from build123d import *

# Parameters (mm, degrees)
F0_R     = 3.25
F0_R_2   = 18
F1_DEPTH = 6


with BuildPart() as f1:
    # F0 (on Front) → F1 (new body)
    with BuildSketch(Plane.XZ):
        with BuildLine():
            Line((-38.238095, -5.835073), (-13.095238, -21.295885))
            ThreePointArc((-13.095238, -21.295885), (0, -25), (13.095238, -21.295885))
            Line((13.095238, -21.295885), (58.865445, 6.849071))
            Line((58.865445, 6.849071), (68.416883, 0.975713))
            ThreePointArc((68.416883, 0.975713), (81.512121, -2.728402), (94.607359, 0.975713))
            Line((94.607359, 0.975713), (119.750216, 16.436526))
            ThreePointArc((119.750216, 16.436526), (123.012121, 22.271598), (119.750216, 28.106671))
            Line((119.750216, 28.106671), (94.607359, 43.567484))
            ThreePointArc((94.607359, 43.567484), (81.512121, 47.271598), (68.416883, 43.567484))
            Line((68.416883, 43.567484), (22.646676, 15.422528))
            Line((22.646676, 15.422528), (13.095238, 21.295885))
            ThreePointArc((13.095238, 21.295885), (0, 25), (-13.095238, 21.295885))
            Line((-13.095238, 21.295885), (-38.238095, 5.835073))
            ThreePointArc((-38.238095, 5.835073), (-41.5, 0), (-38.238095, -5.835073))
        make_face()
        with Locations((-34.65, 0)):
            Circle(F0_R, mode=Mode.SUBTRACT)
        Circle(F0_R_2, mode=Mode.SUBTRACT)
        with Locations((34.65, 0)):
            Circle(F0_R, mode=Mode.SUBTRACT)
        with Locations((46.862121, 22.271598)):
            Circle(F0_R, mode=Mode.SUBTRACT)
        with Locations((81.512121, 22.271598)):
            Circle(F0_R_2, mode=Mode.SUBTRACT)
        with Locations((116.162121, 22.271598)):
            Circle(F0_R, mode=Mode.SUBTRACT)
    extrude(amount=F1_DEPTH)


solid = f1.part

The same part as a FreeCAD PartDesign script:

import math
import FreeCAD as App
import Part
import Sketcher
from FreeCAD import Vector

doc = App.newDocument("Part")
body = doc.addObject("PartDesign::Body", "Body")

# Sketch on XZ plane
sketch1 = body.newObject("Sketcher::SketchObject", "Sketch")
sketch1.AttachmentSupport = (doc.getObject("XZ_Plane"), [""])
sketch1.MapMode = "FlatFace"
sketch1.addGeometry(Part.LineSegment(Vector(-38.238095, -5.835073, 0), Vector(-13.095238, -21.295885, 0)), False)
sketch1.addGeometry(Part.ArcOfCircle(Part.Circle(Vector(0, -0.000003, 0), Vector(0, 0, 1), 24.999997), math.radians(-121.58814), math.radians(-58.41186)), False)
sketch1.addGeometry(Part.LineSegment(Vector(13.095238, -21.295885, 0), Vector(58.865445, 6.849071, 0)), False)
sketch1.addGeometry(Part.LineSegment(Vector(58.865445, 6.849071, 0), Vector(68.416883, 0.975713, 0)), False)
sketch1.addGeometry(Part.ArcOfCircle(Part.Circle(Vector(81.512121, 22.271595, 0), Vector(0, 0, 1), 24.999997), math.radians(-121.58814), math.radians(-58.41186)), False)
sketch1.addGeometry(Part.LineSegment(Vector(94.607359, 0.975713, 0), Vector(119.750216, 16.436526, 0)), False)
sketch1.addGeometry(Part.ArcOfCircle(Part.Circle(Vector(116.162121, 22.271598, 0), Vector(0, 0, 1), 6.85), math.radians(-58.411869), math.radians(58.411869)), False)
sketch1.addGeometry(Part.LineSegment(Vector(119.750216, 28.106671, 0), Vector(94.607359, 43.567484, 0)), False)
sketch1.addGeometry(Part.ArcOfCircle(Part.Circle(Vector(81.512121, 22.271595, 0), Vector(0, 0, 1), 25.000003), math.radians(58.411868), math.radians(121.588132)), False)
sketch1.addGeometry(Part.LineSegment(Vector(68.416883, 43.567484, 0), Vector(22.646676, 15.422528, 0)), False)
sketch1.addGeometry(Part.LineSegment(Vector(22.646676, 15.422528, 0), Vector(13.095238, 21.295885, 0)), False)
sketch1.addGeometry(Part.ArcOfCircle(Part.Circle(Vector(0, 0.000003, 0), Vector(0, 0, 1), 24.999997), math.radians(58.41186), math.radians(121.58814)), False)
sketch1.addGeometry(Part.LineSegment(Vector(-13.095238, 21.295885, 0), Vector(-38.238095, 5.835073, 0)), False)
sketch1.addGeometry(Part.ArcOfCircle(Part.Circle(Vector(-34.65, 0, 0), Vector(0, 0, 1), 6.85), math.radians(121.588135), math.radians(238.411865)), False)
sketch1.addGeometry(Part.Circle(Vector(-34.65, 0, 0), Vector(0, 0, 1), 3.25), False)
sketch1.addGeometry(Part.Circle(Vector(0, 0, 0), Vector(0, 0, 1), 18), False)
sketch1.addGeometry(Part.Circle(Vector(34.65, 0, 0), Vector(0, 0, 1), 3.25), False)
sketch1.addGeometry(Part.Circle(Vector(46.862121, 22.271598, 0), Vector(0, 0, 1), 3.25), False)
sketch1.addGeometry(Part.Circle(Vector(81.512121, 22.271598, 0), Vector(0, 0, 1), 18), False)
sketch1.addGeometry(Part.Circle(Vector(116.162121, 22.271598, 0), Vector(0, 0, 1), 3.25), False)
sketch1.addConstraint(Sketcher.Constraint("Tangent", 0, 2, 1, 1))
sketch1.addConstraint(Sketcher.Constraint("Tangent", 1, 2, 2, 1))
sketch1.addConstraint(Sketcher.Constraint("Coincident", 2, 2, 3, 1))
sketch1.addConstraint(Sketcher.Constraint("Tangent", 3, 2, 4, 1))
sketch1.addConstraint(Sketcher.Constraint("Tangent", 4, 2, 5, 1))
sketch1.addConstraint(Sketcher.Constraint("Tangent", 5, 2, 6, 1))
sketch1.addConstraint(Sketcher.Constraint("Tangent", 6, 2, 7, 1))
sketch1.addConstraint(Sketcher.Constraint("Tangent", 7, 2, 8, 1))
sketch1.addConstraint(Sketcher.Constraint("Tangent", 8, 2, 9, 1))
sketch1.addConstraint(Sketcher.Constraint("Coincident", 9, 2, 10, 1))
sketch1.addConstraint(Sketcher.Constraint("Tangent", 10, 2, 11, 1))
sketch1.addConstraint(Sketcher.Constraint("Tangent", 11, 2, 12, 1))
sketch1.addConstraint(Sketcher.Constraint("Tangent", 12, 2, 13, 1))
sketch1.addConstraint(Sketcher.Constraint("Tangent", 13, 2, 0, 1))
sketch1.addConstraint(Sketcher.Constraint("Coincident", 1, 3, -1, 1))
sketch1.addConstraint(Sketcher.Constraint("Coincident", 11, 3, -1, 1))
sketch1.addConstraint(Sketcher.Constraint("Coincident", 15, 3, -1, 1))
sketch1.addConstraint(Sketcher.Constraint("Coincident", 8, 3, 4, 3))
sketch1.addConstraint(Sketcher.Constraint("Coincident", 14, 3, 13, 3))
sketch1.addConstraint(Sketcher.Constraint("Coincident", 18, 3, 4, 3))
sketch1.addConstraint(Sketcher.Constraint("Coincident", 19, 3, 6, 3))
sketch1.addConstraint(Sketcher.Constraint("Equal", 1, 4))
sketch1.addConstraint(Sketcher.Constraint("Equal", 4, 11))
sketch1.addConstraint(Sketcher.Constraint("Equal", 6, 13))
sketch1.addConstraint(Sketcher.Constraint("Equal", 14, 16))
sketch1.addConstraint(Sketcher.Constraint("Equal", 16, 17))
sketch1.addConstraint(Sketcher.Constraint("Equal", 15, 18))
sketch1.addConstraint(Sketcher.Constraint("Equal", 17, 19))
sketch1.addConstraint(Sketcher.Constraint("Symmetric", 13, 3, 16, 3, -1, 1))
sketch1.addConstraint(Sketcher.Constraint("PointOnObject", 13, 3, -1))
sketch1.addConstraint(Sketcher.Constraint("Parallel", 0, 3))
sketch1.addConstraint(Sketcher.Constraint("Parallel", 2, 5))
sketch1.addConstraint(Sketcher.Constraint("Parallel", 3, 7))
sketch1.addConstraint(Sketcher.Constraint("Parallel", 5, 9))
sketch1.addConstraint(Sketcher.Constraint("Parallel", 7, 10))
sketch1.addConstraint(Sketcher.Constraint("Parallel", 9, 12))
sketch1.addConstraint(Sketcher.Constraint("Horizontal", 6, 3, 17, 3))
sketch1.addConstraint(Sketcher.Constraint("Horizontal", 17, 3, 18, 3))
sketch1.addConstraint(Sketcher.Constraint("Diameter", 15, 36.0))
sketch1.addConstraint(Sketcher.Constraint("Diameter", 14, 6.5))
sketch1.addConstraint(Sketcher.Constraint("Radius", 6, 6.85))
sketch1.addConstraint(Sketcher.Constraint("DistanceX", 17, 3, 19, 3, 69.3))
sketch1.addConstraint(Sketcher.Constraint("DistanceX", 13, 3, -1, 1, 34.65))
sketch1.addConstraint(Sketcher.Constraint("Radius", 1, 24.999997))
sketch1.addConstraint(Sketcher.Constraint("DistanceY", -1, 1, 6, 3, 22.271598))
sketch1.addConstraint(Sketcher.Constraint("Distance", 2, 53.73128))
pad1 = body.newObject("PartDesign::Pad", "Pad")
pad1.Profile = sketch1
pad1.Length = 6

doc.recompute()
